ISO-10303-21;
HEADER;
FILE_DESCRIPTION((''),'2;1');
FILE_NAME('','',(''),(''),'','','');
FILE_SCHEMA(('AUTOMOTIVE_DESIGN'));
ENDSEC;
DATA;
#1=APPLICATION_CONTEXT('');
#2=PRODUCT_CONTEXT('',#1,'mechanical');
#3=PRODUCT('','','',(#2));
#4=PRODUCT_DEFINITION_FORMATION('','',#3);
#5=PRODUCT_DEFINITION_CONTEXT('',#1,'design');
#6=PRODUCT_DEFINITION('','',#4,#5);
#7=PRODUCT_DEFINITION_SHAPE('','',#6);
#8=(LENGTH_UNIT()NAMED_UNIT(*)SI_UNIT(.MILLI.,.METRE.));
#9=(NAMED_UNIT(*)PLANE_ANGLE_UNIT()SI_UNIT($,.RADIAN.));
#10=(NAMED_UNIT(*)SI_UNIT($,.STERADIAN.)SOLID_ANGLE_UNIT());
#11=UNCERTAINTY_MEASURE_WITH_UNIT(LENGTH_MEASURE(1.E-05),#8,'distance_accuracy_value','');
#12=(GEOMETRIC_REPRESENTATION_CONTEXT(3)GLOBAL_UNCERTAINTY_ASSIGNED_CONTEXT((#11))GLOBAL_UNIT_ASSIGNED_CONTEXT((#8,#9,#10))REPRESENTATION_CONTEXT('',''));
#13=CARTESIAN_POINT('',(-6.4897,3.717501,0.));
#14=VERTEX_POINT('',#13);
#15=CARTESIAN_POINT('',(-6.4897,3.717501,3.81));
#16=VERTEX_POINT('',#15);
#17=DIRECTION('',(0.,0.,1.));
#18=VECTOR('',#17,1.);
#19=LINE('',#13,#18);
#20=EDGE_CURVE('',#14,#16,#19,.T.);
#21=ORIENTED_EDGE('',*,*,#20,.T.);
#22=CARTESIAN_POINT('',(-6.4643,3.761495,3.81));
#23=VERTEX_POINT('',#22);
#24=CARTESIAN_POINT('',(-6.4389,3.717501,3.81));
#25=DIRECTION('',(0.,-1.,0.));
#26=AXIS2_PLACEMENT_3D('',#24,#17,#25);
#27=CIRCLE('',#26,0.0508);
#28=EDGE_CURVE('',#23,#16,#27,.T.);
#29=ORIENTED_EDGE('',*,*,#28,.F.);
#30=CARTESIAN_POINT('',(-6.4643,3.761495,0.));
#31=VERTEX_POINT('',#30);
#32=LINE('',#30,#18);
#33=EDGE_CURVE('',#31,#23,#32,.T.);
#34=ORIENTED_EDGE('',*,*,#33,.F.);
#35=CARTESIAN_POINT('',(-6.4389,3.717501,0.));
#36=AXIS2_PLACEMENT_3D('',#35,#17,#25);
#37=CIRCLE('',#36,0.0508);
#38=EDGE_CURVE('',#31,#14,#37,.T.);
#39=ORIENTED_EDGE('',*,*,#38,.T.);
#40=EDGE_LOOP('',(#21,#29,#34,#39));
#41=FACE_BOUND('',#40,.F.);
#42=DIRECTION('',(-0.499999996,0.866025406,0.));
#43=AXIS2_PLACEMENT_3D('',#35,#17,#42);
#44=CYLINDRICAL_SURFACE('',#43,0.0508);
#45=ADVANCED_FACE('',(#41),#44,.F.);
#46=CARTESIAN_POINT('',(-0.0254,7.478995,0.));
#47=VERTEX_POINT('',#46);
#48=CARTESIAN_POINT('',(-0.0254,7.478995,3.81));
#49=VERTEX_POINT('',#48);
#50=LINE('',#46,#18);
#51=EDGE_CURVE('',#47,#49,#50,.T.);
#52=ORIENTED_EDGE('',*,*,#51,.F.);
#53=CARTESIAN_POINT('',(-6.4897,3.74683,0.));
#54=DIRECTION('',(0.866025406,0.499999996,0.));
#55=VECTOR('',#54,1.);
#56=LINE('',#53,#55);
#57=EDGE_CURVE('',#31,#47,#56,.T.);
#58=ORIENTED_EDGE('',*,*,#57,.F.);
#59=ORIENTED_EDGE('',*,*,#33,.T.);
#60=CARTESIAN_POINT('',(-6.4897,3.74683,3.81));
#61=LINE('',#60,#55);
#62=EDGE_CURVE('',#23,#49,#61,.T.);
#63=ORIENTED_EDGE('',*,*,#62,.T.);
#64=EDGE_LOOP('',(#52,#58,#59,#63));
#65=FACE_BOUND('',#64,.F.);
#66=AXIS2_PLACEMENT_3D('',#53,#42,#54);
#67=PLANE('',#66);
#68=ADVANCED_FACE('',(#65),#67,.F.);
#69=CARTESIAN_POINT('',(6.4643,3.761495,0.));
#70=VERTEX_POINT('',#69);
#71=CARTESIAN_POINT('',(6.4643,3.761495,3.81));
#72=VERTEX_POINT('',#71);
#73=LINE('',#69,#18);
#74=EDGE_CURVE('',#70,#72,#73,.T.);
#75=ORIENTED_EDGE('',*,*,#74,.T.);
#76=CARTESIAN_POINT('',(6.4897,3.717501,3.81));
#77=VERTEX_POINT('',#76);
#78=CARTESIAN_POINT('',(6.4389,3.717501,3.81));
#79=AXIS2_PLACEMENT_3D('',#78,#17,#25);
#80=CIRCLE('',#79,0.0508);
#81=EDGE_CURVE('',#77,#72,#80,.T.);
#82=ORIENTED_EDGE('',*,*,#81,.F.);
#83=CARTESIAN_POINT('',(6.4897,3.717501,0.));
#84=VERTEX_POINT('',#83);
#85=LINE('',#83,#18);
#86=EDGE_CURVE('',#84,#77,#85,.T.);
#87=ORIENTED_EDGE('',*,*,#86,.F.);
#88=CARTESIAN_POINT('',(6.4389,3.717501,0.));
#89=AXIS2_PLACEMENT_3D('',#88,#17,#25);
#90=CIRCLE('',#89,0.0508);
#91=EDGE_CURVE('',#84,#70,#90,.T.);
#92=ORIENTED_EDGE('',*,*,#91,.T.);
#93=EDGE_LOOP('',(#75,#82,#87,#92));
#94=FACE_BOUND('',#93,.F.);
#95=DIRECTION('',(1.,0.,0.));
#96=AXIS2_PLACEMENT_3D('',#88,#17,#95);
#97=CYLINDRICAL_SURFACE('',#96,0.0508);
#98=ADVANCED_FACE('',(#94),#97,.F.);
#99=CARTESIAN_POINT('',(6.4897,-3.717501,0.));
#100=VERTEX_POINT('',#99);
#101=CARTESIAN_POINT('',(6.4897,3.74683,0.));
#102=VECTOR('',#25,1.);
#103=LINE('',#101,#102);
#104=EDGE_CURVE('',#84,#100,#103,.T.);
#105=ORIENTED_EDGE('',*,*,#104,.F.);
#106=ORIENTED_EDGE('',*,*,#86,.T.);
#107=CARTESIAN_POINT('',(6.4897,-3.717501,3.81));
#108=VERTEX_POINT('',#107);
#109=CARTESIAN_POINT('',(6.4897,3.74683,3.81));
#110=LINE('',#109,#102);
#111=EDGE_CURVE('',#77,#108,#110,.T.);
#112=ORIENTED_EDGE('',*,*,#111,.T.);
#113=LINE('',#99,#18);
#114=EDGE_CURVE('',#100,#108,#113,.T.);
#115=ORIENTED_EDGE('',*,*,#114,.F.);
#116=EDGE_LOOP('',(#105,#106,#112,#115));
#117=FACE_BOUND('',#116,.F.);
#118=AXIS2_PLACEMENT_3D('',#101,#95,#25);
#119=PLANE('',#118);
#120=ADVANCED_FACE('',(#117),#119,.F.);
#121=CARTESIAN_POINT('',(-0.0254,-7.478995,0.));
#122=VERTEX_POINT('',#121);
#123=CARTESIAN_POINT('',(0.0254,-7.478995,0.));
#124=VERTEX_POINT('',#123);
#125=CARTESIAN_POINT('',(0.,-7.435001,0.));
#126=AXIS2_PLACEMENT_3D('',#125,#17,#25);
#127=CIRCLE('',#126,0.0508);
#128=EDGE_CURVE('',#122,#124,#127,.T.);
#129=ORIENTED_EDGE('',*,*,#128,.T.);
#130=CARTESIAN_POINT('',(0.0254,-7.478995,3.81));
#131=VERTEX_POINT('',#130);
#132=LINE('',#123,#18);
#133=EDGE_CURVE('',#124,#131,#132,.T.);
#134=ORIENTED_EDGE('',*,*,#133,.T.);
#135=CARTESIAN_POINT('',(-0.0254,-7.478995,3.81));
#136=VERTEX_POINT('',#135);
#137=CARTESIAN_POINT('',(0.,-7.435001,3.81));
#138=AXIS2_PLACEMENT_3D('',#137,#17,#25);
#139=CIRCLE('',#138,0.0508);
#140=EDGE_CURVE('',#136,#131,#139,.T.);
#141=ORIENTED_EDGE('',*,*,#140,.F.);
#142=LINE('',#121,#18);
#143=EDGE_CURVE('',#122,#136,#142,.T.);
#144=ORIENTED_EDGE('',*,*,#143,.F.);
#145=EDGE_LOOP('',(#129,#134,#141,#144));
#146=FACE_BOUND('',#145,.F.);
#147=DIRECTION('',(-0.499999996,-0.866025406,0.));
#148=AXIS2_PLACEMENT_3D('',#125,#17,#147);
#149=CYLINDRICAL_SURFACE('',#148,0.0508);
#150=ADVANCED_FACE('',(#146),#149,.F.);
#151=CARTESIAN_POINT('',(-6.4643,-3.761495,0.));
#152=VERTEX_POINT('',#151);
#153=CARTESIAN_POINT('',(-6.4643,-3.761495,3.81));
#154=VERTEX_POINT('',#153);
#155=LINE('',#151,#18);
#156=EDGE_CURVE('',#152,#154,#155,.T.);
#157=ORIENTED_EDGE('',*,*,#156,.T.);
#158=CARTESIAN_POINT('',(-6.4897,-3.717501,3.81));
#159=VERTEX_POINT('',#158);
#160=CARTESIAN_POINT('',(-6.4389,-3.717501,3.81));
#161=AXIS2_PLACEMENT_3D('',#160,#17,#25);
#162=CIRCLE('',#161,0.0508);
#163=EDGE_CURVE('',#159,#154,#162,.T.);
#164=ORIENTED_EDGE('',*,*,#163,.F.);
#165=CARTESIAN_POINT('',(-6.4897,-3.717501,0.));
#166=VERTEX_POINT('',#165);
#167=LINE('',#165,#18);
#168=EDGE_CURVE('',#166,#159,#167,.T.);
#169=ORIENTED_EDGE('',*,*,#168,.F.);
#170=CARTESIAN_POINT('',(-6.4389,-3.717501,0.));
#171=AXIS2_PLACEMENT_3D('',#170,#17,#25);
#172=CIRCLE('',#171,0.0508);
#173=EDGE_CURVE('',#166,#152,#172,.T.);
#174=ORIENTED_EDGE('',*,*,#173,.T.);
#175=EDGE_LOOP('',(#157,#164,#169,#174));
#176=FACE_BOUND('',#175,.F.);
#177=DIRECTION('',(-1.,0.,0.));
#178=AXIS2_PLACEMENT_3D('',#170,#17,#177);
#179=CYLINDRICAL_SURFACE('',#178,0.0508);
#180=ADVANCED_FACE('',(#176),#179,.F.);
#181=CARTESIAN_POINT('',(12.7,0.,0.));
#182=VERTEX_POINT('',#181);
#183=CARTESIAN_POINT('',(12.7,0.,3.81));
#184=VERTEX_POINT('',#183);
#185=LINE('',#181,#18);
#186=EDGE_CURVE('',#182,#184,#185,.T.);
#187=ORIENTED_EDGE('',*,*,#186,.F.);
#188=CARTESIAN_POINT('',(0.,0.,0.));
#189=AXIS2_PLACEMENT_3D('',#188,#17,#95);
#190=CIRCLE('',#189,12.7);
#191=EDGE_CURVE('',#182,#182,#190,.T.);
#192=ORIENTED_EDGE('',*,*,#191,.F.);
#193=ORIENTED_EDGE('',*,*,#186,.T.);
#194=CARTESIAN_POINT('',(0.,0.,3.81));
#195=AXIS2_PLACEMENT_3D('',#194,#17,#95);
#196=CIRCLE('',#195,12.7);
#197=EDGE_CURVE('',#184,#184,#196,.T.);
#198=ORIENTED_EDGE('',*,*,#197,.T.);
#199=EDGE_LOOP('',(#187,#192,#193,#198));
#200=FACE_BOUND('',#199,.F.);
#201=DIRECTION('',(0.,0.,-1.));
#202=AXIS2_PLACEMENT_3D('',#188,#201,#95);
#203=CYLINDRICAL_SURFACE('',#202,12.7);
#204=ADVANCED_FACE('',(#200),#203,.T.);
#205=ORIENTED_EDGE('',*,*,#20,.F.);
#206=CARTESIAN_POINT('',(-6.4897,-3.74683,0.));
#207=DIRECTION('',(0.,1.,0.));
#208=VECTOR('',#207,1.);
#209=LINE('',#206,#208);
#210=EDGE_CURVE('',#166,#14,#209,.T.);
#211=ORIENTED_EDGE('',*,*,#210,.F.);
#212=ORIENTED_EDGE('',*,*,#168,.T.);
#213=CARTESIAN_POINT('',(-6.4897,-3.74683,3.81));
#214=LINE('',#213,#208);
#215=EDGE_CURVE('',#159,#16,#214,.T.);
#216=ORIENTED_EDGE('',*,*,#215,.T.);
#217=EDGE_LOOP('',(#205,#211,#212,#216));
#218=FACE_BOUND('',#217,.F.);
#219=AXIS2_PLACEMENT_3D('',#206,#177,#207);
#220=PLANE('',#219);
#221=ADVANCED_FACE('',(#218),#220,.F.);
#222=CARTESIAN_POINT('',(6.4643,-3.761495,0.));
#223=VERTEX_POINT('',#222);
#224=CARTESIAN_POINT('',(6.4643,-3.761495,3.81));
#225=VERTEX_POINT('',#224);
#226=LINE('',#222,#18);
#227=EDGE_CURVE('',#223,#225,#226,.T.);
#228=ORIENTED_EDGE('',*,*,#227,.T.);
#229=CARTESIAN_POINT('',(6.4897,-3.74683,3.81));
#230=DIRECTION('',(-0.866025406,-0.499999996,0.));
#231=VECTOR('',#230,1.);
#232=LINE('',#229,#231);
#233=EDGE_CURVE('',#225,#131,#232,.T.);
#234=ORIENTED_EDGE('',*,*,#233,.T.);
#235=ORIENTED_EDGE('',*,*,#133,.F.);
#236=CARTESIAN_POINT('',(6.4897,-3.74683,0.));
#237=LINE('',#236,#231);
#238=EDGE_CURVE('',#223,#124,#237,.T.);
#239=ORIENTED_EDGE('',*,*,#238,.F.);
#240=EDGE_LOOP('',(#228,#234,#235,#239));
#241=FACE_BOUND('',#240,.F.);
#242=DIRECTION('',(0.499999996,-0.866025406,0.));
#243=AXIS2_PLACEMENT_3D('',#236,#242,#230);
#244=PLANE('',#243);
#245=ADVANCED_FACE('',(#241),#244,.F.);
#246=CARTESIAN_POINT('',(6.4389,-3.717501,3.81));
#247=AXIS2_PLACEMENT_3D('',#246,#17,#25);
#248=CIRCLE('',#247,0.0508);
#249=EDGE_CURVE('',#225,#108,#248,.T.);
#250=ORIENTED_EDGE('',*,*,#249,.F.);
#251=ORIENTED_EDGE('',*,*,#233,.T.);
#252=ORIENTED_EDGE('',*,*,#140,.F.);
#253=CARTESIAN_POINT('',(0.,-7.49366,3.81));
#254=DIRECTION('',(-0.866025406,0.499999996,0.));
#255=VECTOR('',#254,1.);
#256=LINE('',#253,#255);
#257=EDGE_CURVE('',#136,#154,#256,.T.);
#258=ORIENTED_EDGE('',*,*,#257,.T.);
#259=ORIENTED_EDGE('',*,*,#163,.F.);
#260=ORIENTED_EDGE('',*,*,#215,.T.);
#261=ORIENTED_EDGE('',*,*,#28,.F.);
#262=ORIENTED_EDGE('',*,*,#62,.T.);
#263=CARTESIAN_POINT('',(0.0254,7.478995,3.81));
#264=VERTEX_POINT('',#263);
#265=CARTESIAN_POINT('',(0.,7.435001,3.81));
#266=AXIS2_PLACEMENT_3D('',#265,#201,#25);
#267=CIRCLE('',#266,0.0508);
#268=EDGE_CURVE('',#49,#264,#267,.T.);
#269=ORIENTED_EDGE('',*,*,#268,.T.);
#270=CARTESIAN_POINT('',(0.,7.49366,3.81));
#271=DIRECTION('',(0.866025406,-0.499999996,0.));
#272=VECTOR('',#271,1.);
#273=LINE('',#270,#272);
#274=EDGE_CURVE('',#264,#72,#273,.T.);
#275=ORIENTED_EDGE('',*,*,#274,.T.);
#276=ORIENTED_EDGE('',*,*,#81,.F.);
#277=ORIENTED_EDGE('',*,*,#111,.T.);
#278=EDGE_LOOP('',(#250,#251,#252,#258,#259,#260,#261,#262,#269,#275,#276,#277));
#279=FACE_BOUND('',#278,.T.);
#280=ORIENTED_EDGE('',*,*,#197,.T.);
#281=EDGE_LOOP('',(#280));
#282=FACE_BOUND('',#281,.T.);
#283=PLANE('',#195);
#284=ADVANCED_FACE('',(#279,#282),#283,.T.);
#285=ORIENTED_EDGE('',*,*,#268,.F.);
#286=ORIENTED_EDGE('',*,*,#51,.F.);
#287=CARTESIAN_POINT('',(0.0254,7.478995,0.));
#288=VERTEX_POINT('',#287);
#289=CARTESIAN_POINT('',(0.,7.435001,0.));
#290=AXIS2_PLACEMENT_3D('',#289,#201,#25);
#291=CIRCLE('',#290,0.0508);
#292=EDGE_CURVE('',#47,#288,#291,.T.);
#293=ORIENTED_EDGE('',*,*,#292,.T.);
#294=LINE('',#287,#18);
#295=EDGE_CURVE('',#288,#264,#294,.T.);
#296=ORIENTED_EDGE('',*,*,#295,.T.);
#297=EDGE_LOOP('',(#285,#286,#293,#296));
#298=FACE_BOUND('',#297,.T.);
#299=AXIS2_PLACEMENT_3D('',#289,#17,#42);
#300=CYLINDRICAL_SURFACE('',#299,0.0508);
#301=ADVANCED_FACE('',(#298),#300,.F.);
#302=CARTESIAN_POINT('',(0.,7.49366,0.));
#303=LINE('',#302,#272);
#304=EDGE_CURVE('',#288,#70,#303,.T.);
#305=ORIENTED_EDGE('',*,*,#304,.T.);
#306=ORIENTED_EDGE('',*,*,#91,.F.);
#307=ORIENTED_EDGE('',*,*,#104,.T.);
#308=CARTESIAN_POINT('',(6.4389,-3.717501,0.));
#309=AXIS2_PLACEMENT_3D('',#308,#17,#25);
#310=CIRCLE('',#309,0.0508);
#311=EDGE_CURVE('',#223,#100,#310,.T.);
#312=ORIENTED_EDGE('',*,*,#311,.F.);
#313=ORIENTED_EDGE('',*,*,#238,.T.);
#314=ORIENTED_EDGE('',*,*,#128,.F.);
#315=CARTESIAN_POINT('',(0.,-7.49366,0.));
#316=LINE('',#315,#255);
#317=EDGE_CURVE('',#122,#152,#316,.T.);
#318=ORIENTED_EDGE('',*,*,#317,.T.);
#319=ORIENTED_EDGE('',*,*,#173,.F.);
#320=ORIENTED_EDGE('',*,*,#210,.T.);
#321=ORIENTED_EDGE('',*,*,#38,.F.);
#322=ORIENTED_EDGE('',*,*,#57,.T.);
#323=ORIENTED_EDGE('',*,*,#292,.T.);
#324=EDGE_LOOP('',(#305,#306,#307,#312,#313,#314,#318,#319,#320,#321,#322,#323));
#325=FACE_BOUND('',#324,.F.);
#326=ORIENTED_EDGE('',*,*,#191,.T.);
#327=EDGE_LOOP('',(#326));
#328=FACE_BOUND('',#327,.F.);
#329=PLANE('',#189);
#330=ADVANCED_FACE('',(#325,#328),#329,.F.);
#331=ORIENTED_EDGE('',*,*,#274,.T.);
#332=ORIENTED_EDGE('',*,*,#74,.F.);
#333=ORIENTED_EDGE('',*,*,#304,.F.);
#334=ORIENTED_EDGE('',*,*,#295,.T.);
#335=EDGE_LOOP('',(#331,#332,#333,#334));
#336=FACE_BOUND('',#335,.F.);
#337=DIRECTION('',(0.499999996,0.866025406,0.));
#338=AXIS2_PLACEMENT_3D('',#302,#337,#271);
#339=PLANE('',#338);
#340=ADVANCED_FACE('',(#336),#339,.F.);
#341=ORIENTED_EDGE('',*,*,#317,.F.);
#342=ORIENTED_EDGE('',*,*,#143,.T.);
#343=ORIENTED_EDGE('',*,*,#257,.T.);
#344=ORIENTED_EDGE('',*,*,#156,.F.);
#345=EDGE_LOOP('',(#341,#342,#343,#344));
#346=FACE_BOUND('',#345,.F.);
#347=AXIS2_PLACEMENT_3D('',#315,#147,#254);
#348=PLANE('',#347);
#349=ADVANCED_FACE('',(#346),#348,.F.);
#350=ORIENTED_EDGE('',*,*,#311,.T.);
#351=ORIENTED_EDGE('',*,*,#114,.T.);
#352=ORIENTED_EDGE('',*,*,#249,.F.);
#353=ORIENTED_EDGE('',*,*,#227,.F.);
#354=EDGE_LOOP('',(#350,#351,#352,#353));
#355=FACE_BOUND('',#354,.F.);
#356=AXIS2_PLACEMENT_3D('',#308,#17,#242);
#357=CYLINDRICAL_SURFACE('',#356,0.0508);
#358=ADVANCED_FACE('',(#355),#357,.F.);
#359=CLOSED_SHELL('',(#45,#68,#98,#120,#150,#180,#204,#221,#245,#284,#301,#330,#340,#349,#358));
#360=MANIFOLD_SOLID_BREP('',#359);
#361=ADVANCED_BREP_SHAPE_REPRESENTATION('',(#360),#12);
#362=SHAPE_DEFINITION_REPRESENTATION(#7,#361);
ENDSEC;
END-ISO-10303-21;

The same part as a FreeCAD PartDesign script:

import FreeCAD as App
import Part
import Sketcher
from FreeCAD import Vector
Q = App.Units.Quantity


def edges_at(feature, points):
    """Names of the edges that pass closest to the given points."""
    edges = feature.Shape.Edges
    near = lambda p: min(range(len(edges)), key=lambda i: edges[i].distToShape(Part.Vertex(*p))[0])
    return sorted({f"Edge{near(p) + 1}" for p in points})

doc = App.newDocument("Part")
params = doc.addObject("Spreadsheet::Sheet", "Params")
for row, (alias, value) in enumerate([
    ("sketch1_diameter", "1 in"),
    ("pad1_length", "0.15 in"),
    ("fillet_radius", "0.002 in"),
], start=1):
    params.set(f"A{row}", alias)
    params.set(f"B{row}", "=" + value)
    params.setAlias(f"B{row}", alias)

body = doc.addObject("PartDesign::Body", "Body")

# Sketch on XY plane
sketch1 = doc.addObject("Sketcher::SketchObject", "Sketch")
body.addObject(sketch1)
sketch1.AttachmentSupport = (doc.XY_Plane, [""])
sketch1.MapMode = "FlatFace"
sketch1.addGeometry(Part.Circle(Vector(0, 0, 0), Vector(0, 0, 1), 12.7), False)
sketch1.addGeometry(Part.LineSegment(Vector(-6.4897, 3.74683, 0), Vector(0, 7.49366, 0)), False)
sketch1.addGeometry(Part.LineSegment(Vector(0, 7.49366, 0), Vector(6.4897, 3.74683, 0)), False)
sketch1.addGeometry(Part.LineSegment(Vector(6.4897, 3.74683, 0), Vector(6.4897, -3.74683, 0)), False)
sketch1.addGeometry(Part.LineSegment(Vector(6.4897, -3.74683, 0), Vector(0, -7.49366, 0)), False)
sketch1.addGeometry(Part.LineSegment(Vector(0, -7.49366, 0), Vector(-6.4897, -3.74683, 0)), False)
sketch1.addGeometry(Part.LineSegment(Vector(-6.4897, -3.74683, 0), Vector(-6.4897, 3.74683, 0)), False)
sketch1.addConstraint(Sketcher.Constraint("Coincident", 1, 2, 2, 1))
sketch1.addConstraint(Sketcher.Constraint("Coincident", 2, 2, 3, 1))
sketch1.addConstraint(Sketcher.Constraint("Coincident", 3, 2, 4, 1))
sketch1.addConstraint(Sketcher.Constraint("Coincident", 4, 2, 5, 1))
sketch1.addConstraint(Sketcher.Constraint("Coincident", 5, 2, 6, 1))
sketch1.addConstraint(Sketcher.Constraint("Coincident", 6, 2, 1, 1))
sketch1.addConstraint(Sketcher.Constraint("Vertical", 3))
sketch1.addConstraint(Sketcher.Constraint("Vertical", 6))
sketch1.addConstraint(Sketcher.Constraint("Coincident", 0, 3, -1, 1))
sketch1.addConstraint(Sketcher.Constraint("Symmetric", 1, 2, 4, 2, -1, 1))
sketch1.addConstraint(Sketcher.Constraint("Symmetric", 2, 2, 5, 2, -1, 1))
sketch1.addConstraint(Sketcher.Constraint("PointOnObject", 1, 2, -2))
sketch1.addConstraint(Sketcher.Constraint("Parallel", 1, 4))
sketch1.addConstraint(Sketcher.Constraint("Horizontal", 3, 2, 5, 2))
sketch1.addConstraint(Sketcher.Constraint("Diameter", 0, Q("1 in")))
sketch1.addConstraint(Sketcher.Constraint("Angle", 1, Q("30 deg")))
sketch1.addConstraint(Sketcher.Constraint("DistanceX", 5, 2, 3, 2, Q("0.511 in")))
sketch1.addConstraint(Sketcher.Constraint("DistanceY", 3, 2, 3, 1, 7.49366))
sketch1.setExpression("Constraints[14]", "Params.sketch1_diameter")
pad1 = doc.addObject("PartDesign::Pad", "Pad")
body.addObject(pad1)
pad1.Profile = sketch1
pad1.setExpression("Length", "Params.pad1_length")
doc.recompute()

fillet = doc.addObject("PartDesign::Fillet", "Fillet")
body.addObject(fillet)
fillet.Base = (pad1, edges_at(pad1, [
    (-6.49, -3.747, 1.905),
    (-6.49, 3.747, 1.905),
    (0, 7.494, 1.905),
    (6.49, 3.747, 1.905),
    (6.49, -3.747, 1.905),
    (0, -7.494, 1.905),
]))
fillet.setExpression("Radius", "Params.fillet_radius")

doc.recompute()
